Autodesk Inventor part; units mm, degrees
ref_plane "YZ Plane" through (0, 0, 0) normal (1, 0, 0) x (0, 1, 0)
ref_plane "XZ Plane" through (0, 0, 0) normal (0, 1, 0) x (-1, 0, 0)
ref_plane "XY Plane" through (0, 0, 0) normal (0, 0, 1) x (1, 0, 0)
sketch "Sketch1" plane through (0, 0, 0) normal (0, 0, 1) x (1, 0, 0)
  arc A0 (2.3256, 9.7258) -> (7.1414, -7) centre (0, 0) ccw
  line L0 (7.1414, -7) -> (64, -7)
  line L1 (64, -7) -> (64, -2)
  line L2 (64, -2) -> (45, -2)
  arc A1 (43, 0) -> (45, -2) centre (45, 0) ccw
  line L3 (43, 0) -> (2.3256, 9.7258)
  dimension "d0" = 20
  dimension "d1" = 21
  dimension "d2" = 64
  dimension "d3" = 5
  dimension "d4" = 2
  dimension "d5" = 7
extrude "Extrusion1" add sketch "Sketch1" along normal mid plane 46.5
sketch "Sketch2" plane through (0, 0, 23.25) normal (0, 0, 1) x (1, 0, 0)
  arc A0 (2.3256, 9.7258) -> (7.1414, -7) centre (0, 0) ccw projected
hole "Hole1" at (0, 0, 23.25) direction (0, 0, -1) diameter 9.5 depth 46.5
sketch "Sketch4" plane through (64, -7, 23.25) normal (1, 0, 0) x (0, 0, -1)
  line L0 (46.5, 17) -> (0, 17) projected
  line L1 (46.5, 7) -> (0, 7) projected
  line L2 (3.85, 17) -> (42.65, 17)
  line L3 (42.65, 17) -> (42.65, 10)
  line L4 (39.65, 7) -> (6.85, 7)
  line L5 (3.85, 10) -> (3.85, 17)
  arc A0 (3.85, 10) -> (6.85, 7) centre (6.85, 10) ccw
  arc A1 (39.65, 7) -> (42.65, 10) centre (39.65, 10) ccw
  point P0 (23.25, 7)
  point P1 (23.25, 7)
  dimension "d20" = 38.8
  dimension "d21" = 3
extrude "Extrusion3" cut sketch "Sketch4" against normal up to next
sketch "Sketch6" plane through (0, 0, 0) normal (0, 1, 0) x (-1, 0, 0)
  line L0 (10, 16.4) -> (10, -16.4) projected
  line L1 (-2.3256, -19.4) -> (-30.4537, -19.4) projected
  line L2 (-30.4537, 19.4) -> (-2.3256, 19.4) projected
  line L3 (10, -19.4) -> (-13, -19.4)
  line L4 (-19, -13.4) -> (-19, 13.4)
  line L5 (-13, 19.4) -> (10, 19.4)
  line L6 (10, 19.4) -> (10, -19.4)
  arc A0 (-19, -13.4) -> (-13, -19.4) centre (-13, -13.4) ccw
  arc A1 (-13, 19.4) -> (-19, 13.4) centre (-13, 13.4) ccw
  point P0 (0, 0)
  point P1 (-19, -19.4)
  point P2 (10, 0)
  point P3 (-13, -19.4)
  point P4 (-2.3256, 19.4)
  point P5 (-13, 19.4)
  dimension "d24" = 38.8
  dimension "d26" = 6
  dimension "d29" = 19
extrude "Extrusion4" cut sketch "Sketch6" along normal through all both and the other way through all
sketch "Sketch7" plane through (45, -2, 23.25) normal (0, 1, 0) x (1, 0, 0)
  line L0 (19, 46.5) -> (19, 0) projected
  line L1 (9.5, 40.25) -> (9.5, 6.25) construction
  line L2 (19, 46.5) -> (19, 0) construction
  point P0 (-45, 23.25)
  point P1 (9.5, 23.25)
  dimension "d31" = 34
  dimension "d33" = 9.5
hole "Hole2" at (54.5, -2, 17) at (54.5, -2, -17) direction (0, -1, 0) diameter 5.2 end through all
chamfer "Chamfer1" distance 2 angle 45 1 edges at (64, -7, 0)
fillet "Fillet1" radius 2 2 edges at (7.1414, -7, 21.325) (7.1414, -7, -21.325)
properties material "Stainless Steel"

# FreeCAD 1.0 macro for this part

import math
import FreeCAD as App
import Part
import Sketcher

V = App.Vector
Q = App.Units.Quantity


def edges_at(feature, points):
    """Names of the edges that pass closest to the given points."""
    edges = feature.Shape.Edges
    near = lambda p: min(range(len(edges)), key=lambda i: edges[i].distToShape(Part.Vertex(*p))[0])
    return sorted({f"Edge{near(p) + 1}" for p in points})

doc = App.newDocument("Part")
body = doc.addObject("PartDesign::Body", "Body")

# Sketch on XY plane
sketch1 = doc.addObject("Sketcher::SketchObject", "Sketch")
body.addObject(sketch1)
sketch1.AttachmentSupport = (doc.XY_Plane, [""])
sketch1.MapMode = "FlatFace"
sketch1.addGeometry([
    Part.LineSegment(V(43, 0, 0), V(2.3, 9.7, 0)),  # 0
    Part.ArcOfCircle(Part.Circle(V(0, 0, 0), V(0, 0, 1), 10), math.radians(77), math.radians(316)),  # 1
    Part.LineSegment(V(7.1, -7, 0), V(64, -7, 0)),  # 2
    Part.LineSegment(V(64, -7, 0), V(64, -2, 0)),  # 3
    Part.LineSegment(V(64, -2, 0), V(45, -2, 0)),  # 4
    Part.ArcOfCircle(Part.Circle(V(45, 0, 0), V(0, 0, 1), 2), math.radians(180), math.radians(270)),  # 5
], False)
sketch1.addConstraint([
    Sketcher.Constraint("Tangent", 0, 2, 1, 1),
    Sketcher.Constraint("Coincident", 1, 2, 2, 1),
    Sketcher.Constraint("Coincident", 2, 2, 3, 1),
    Sketcher.Constraint("Coincident", 3, 2, 4, 1),
    Sketcher.Constraint("Tangent", 4, 2, 5, 2),
    Sketcher.Constraint("Coincident", 5, 1, 0, 1),
    Sketcher.Constraint("Horizontal", 2),
    Sketcher.Constraint("Vertical", 3),
    Sketcher.Constraint("Horizontal", 4),
    Sketcher.Constraint("Coincident", 1, 3, -1, 1),
    Sketcher.Constraint("PointOnObject", 5, 3, -1),
    Sketcher.Constraint("PointOnObject", 5, 1, -1),
    Sketcher.Constraint("Radius", 1, Q("10 mm")),
    Sketcher.Constraint("Radius", 5, Q("2 mm")),
    Sketcher.Constraint("DistanceY", 3, 1, 3, 2, Q("5 mm")),
    Sketcher.Constraint("DistanceX", -1, 1, 2, 2, Q("64 mm")),
    Sketcher.Constraint("DistanceX", 5, 1, 3, 2, Q("21 mm")),
])
pad1 = doc.addObject("PartDesign::Pad", "Pad")
body.addObject(pad1)
pad1.Profile = sketch1
pad1.Length = 46.5
pad1.Midplane = True

# Sketch on XY plane
sketch2 = doc.addObject("Sketcher::SketchObject", "Sketch001")
body.addObject(sketch2)
sketch2.AttachmentSupport = (doc.XY_Plane, [""])
sketch2.MapMode = "FlatFace"
sketch2.AttachmentOffset = App.Placement(V(0, 0, 23.25), App.Rotation())
sketch2.addGeometry(Part.Circle(V(0, 0, 0), V(0, 0, 1), 4.8), False)
sketch2.addConstraint([
    Sketcher.Constraint("Coincident", 0, 3, -1, 1),
    Sketcher.Constraint("Diameter", 0, Q("9.5 mm")),
])
doc.recompute()
hole = doc.addObject("PartDesign::Hole", "Hole")
body.addObject(hole)
hole.Profile = sketch2
hole.ThreadType = "None"
hole.Diameter = 9.5
hole.DepthType = "Dimension"
hole.Depth = 46.5
hole.DrillPoint = "Flat"

# Sketch on YZ plane
sketch3 = doc.addObject("Sketcher::SketchObject", "Sketch002")
body.addObject(sketch3)
sketch3.AttachmentSupport = (doc.YZ_Plane, [""])
sketch3.MapMode = "FlatFace"
sketch3.AttachmentOffset = App.Placement(V(0, 0, 64), App.Rotation())
sketch3.addGeometry([
    Part.LineSegment(V(3, -19.4, 0), V(10, -19.4, 0)),  # 0
    Part.LineSegment(V(10, -19.4, 0), V(10, 19.4, 0)),  # 1
    Part.LineSegment(V(10, 19.4, 0), V(3, 19.4, 0)),  # 2
    Part.ArcOfCircle(Part.Circle(V(3, 16.4, 0), V(0, 0, 1), 3), math.radians(90), math.radians(180)),  # 3
    Part.LineSegment(V(0, 16.4, 0), V(0, -16.4, 0)),  # 4
    Part.ArcOfCircle(Part.Circle(V(3, -16.4, 0), V(0, 0, 1), 3), math.radians(180), math.radians(270)),  # 5
], False)
sketch3.addConstraint([
    Sketcher.Constraint("Coincident", 0, 2, 1, 1),
    Sketcher.Constraint("Coincident", 1, 2, 2, 1),
    Sketcher.Constraint("Tangent", 2, 2, 3, 1),
    Sketcher.Constraint("Tangent", 3, 2, 4, 1),
    Sketcher.Constraint("Tangent", 4, 2, 5, 1),
    Sketcher.Constraint("Tangent", 5, 2, 0, 1),
    Sketcher.Constraint("Horizontal", 0),
    Sketcher.Constraint("Vertical", 1),
    Sketcher.Constraint("Horizontal", 2),
    Sketcher.Constraint("Vertical", 4),
    Sketcher.Constraint("Equal", 3, 5),
    Sketcher.Constraint("Symmetric", 3, 2, 4, 2, -1, 1),
    Sketcher.Constraint("Radius", 3, Q("3 mm")),
    Sketcher.Constraint("DistanceY", 1, 1, 1, 2, Q("38.8 mm")),
    Sketcher.Constraint("DistanceX", 0, 1, 0, 2, Q("7 mm")),
])
pocket1 = doc.addObject("PartDesign::Pocket", "Pocket")
body.addObject(pocket1)
pocket1.Profile = sketch3
pocket1.Length = 74

# Sketch on XZ plane
sketch4 = doc.addObject("Sketcher::SketchObject", "Sketch003")
body.addObject(sketch4)
sketch4.AttachmentSupport = (doc.XZ_Plane, [""])
sketch4.MapMode = "FlatFace"
sketch4.addGeometry([
    Part.LineSegment(V(-10, -19, 0), V(-10, 19, 0)),  # 0
    Part.LineSegment(V(-10, 19, 0), V(13, 19, 0)),  # 1
    Part.ArcOfCircle(Part.Circle(V(13, 13, 0), V(0, 0, 1), 6), math.radians(0), math.radians(90)),  # 2
    Part.LineSegment(V(19, 13, 0), V(19, -13, 0)),  # 3
    Part.ArcOfCircle(Part.Circle(V(13, -13, 0), V(0, 0, 1), 6), math.radians(-90), math.radians(0)),  # 4
    Part.LineSegment(V(13, -19, 0), V(-10, -19, 0)),  # 5
], False)
sketch4.addConstraint([
    Sketcher.Constraint("Coincident", 0, 2, 1, 1),
    Sketcher.Constraint("Tangent", 1, 2, 2, 2),
    Sketcher.Constraint("Tangent", 2, 1, 3, 1),
    Sketcher.Constraint("Tangent", 3, 2, 4, 2),
    Sketcher.Constraint("Tangent", 4, 1, 5, 1),
    Sketcher.Constraint("Coincident", 5, 2, 0, 1),
    Sketcher.Constraint("Vertical", 0),
    Sketcher.Constraint("Horizontal", 1),
    Sketcher.Constraint("Vertical", 3),
    Sketcher.Constraint("Horizontal", 5),
    Sketcher.Constraint("Equal", 2, 4),
    Sketcher.Constraint("Radius", 2, Q("6 mm")),
    Sketcher.Constraint("DistanceY", 0, 1, 0, 2, Q("38.8 mm")),
    Sketcher.Constraint("DistanceX", -1, 1, 2, 1, Q("19 mm")),
    Sketcher.Constraint("DistanceX", 1, 1, 1, 2, Q("23 mm")),
    Sketcher.Constraint("DistanceY", -1, 1, 2, 3, Q("13.4 mm")),
])
pocket2 = doc.addObject("PartDesign::Pocket", "Pocket001")
body.addObject(pocket2)
pocket2.Profile = sketch4
pocket2.Type = "ThroughAll"
pocket2.Midplane = True

# Sketch on XZ plane
sketch5 = doc.addObject("Sketcher::SketchObject", "Sketch004")
body.addObject(sketch5)
sketch5.AttachmentSupport = (doc.XZ_Plane, [""])
sketch5.MapMode = "FlatFace"
sketch5.AttachmentOffset = App.Placement(V(0, 0, 2), App.Rotation())
sketch5.addGeometry([
    Part.Circle(V(54.5, 17, 0), V(0, 0, 1), 2.6),
    Part.Circle(V(54.5, -17, 0), V(0, 0, 1), 2.6),
], False)
sketch5.addConstraint([
    Sketcher.Constraint("Equal", 0, 1),
    Sketcher.Constraint("Symmetric", 0, 3, 1, 3, -1),
    Sketcher.Constraint("Diameter", 0, Q("5.2 mm")),
    Sketcher.Constraint("DistanceY", -1, 1, 0, 3, Q("17 mm")),
    Sketcher.Constraint("DistanceX", -1, 1, 0, 3, Q("54.5 mm")),
])
doc.recompute()
hole2 = doc.addObject("PartDesign::Hole", "Hole001")
body.addObject(hole2)
hole2.Profile = sketch5
hole2.ThreadType = "None"
hole2.Diameter = 5.2
hole2.DepthType = "ThroughAll"
hole2.Reversed = True
doc.recompute()

chamfer = doc.addObject("PartDesign::Chamfer", "Chamfer")
body.addObject(chamfer)
chamfer.Base = (hole2, edges_at(hole2, [(64, -7, 0)]))
chamfer.Size = 2
doc.recompute()

fillet = doc.addObject("PartDesign::Fillet", "Fillet")
body.addObject(fillet)
fillet.Base = (chamfer, edges_at(chamfer, [(7.141, -7, 21.325), (7.141, -7, -21.325)]))
fillet.Radius = 2

doc.recompute()
